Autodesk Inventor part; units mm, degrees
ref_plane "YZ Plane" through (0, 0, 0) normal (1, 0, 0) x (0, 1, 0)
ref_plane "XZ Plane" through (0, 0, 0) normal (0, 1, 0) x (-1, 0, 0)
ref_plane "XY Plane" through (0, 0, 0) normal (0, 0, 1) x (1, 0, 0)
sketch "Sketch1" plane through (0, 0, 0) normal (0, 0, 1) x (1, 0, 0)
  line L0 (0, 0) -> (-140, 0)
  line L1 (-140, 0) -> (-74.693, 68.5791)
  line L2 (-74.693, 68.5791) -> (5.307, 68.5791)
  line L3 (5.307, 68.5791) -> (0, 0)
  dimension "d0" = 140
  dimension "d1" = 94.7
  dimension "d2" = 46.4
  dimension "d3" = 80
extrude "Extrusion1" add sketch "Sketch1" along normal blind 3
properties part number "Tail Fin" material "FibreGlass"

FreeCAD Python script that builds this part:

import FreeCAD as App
import Part
import Sketcher
Q = App.Units.Quantity

doc = App.newDocument("Part")
body = doc.addObject("PartDesign::Body", "Body")

# Sketch on XY plane
sketch1 = body.newObject("Sketcher::SketchObject", "Sketch")
sketch1.AttachmentSupport = (doc.getObject("XY_Plane"), [""])
sketch1.MapMode = "FlatFace"
sketch1.addGeometry([
    Part.LineSegment(App.Vector(-140, 0, 0), App.Vector(0, 0, 0)),
    Part.LineSegment(App.Vector(0, 0, 0), App.Vector(5, 69, 0)),
    Part.LineSegment(App.Vector(5, 69, 0), App.Vector(-75, 69, 0)),
    Part.LineSegment(App.Vector(-75, 69, 0), App.Vector(-140, 0, 0)),
], False)
sketch1.addConstraint([
    Sketcher.Constraint("Coincident", 0, 2, 1, 1),
    Sketcher.Constraint("Coincident", 1, 2, 2, 1),
    Sketcher.Constraint("Coincident", 2, 2, 3, 1),
    Sketcher.Constraint("Coincident", 3, 2, 0, 1),
    Sketcher.Constraint("Horizontal", 0),
    Sketcher.Constraint("Horizontal", 2),
    Sketcher.Constraint("Coincident", 0, 2, -1, 1),
    Sketcher.Constraint("DistanceX", 0, 1, 0, 2, 140.0),
    Sketcher.Constraint("DistanceX", 2, 2, 2, 1, 80.0),
    Sketcher.Constraint("Distance", 3, 94.7),
    Sketcher.Constraint("Angle", 3, Q("-133.6 deg")),
])
pad1 = body.newObject("PartDesign::Pad", "Pad")
pad1.Profile = sketch1
pad1.Length = 3

doc.recompute()
